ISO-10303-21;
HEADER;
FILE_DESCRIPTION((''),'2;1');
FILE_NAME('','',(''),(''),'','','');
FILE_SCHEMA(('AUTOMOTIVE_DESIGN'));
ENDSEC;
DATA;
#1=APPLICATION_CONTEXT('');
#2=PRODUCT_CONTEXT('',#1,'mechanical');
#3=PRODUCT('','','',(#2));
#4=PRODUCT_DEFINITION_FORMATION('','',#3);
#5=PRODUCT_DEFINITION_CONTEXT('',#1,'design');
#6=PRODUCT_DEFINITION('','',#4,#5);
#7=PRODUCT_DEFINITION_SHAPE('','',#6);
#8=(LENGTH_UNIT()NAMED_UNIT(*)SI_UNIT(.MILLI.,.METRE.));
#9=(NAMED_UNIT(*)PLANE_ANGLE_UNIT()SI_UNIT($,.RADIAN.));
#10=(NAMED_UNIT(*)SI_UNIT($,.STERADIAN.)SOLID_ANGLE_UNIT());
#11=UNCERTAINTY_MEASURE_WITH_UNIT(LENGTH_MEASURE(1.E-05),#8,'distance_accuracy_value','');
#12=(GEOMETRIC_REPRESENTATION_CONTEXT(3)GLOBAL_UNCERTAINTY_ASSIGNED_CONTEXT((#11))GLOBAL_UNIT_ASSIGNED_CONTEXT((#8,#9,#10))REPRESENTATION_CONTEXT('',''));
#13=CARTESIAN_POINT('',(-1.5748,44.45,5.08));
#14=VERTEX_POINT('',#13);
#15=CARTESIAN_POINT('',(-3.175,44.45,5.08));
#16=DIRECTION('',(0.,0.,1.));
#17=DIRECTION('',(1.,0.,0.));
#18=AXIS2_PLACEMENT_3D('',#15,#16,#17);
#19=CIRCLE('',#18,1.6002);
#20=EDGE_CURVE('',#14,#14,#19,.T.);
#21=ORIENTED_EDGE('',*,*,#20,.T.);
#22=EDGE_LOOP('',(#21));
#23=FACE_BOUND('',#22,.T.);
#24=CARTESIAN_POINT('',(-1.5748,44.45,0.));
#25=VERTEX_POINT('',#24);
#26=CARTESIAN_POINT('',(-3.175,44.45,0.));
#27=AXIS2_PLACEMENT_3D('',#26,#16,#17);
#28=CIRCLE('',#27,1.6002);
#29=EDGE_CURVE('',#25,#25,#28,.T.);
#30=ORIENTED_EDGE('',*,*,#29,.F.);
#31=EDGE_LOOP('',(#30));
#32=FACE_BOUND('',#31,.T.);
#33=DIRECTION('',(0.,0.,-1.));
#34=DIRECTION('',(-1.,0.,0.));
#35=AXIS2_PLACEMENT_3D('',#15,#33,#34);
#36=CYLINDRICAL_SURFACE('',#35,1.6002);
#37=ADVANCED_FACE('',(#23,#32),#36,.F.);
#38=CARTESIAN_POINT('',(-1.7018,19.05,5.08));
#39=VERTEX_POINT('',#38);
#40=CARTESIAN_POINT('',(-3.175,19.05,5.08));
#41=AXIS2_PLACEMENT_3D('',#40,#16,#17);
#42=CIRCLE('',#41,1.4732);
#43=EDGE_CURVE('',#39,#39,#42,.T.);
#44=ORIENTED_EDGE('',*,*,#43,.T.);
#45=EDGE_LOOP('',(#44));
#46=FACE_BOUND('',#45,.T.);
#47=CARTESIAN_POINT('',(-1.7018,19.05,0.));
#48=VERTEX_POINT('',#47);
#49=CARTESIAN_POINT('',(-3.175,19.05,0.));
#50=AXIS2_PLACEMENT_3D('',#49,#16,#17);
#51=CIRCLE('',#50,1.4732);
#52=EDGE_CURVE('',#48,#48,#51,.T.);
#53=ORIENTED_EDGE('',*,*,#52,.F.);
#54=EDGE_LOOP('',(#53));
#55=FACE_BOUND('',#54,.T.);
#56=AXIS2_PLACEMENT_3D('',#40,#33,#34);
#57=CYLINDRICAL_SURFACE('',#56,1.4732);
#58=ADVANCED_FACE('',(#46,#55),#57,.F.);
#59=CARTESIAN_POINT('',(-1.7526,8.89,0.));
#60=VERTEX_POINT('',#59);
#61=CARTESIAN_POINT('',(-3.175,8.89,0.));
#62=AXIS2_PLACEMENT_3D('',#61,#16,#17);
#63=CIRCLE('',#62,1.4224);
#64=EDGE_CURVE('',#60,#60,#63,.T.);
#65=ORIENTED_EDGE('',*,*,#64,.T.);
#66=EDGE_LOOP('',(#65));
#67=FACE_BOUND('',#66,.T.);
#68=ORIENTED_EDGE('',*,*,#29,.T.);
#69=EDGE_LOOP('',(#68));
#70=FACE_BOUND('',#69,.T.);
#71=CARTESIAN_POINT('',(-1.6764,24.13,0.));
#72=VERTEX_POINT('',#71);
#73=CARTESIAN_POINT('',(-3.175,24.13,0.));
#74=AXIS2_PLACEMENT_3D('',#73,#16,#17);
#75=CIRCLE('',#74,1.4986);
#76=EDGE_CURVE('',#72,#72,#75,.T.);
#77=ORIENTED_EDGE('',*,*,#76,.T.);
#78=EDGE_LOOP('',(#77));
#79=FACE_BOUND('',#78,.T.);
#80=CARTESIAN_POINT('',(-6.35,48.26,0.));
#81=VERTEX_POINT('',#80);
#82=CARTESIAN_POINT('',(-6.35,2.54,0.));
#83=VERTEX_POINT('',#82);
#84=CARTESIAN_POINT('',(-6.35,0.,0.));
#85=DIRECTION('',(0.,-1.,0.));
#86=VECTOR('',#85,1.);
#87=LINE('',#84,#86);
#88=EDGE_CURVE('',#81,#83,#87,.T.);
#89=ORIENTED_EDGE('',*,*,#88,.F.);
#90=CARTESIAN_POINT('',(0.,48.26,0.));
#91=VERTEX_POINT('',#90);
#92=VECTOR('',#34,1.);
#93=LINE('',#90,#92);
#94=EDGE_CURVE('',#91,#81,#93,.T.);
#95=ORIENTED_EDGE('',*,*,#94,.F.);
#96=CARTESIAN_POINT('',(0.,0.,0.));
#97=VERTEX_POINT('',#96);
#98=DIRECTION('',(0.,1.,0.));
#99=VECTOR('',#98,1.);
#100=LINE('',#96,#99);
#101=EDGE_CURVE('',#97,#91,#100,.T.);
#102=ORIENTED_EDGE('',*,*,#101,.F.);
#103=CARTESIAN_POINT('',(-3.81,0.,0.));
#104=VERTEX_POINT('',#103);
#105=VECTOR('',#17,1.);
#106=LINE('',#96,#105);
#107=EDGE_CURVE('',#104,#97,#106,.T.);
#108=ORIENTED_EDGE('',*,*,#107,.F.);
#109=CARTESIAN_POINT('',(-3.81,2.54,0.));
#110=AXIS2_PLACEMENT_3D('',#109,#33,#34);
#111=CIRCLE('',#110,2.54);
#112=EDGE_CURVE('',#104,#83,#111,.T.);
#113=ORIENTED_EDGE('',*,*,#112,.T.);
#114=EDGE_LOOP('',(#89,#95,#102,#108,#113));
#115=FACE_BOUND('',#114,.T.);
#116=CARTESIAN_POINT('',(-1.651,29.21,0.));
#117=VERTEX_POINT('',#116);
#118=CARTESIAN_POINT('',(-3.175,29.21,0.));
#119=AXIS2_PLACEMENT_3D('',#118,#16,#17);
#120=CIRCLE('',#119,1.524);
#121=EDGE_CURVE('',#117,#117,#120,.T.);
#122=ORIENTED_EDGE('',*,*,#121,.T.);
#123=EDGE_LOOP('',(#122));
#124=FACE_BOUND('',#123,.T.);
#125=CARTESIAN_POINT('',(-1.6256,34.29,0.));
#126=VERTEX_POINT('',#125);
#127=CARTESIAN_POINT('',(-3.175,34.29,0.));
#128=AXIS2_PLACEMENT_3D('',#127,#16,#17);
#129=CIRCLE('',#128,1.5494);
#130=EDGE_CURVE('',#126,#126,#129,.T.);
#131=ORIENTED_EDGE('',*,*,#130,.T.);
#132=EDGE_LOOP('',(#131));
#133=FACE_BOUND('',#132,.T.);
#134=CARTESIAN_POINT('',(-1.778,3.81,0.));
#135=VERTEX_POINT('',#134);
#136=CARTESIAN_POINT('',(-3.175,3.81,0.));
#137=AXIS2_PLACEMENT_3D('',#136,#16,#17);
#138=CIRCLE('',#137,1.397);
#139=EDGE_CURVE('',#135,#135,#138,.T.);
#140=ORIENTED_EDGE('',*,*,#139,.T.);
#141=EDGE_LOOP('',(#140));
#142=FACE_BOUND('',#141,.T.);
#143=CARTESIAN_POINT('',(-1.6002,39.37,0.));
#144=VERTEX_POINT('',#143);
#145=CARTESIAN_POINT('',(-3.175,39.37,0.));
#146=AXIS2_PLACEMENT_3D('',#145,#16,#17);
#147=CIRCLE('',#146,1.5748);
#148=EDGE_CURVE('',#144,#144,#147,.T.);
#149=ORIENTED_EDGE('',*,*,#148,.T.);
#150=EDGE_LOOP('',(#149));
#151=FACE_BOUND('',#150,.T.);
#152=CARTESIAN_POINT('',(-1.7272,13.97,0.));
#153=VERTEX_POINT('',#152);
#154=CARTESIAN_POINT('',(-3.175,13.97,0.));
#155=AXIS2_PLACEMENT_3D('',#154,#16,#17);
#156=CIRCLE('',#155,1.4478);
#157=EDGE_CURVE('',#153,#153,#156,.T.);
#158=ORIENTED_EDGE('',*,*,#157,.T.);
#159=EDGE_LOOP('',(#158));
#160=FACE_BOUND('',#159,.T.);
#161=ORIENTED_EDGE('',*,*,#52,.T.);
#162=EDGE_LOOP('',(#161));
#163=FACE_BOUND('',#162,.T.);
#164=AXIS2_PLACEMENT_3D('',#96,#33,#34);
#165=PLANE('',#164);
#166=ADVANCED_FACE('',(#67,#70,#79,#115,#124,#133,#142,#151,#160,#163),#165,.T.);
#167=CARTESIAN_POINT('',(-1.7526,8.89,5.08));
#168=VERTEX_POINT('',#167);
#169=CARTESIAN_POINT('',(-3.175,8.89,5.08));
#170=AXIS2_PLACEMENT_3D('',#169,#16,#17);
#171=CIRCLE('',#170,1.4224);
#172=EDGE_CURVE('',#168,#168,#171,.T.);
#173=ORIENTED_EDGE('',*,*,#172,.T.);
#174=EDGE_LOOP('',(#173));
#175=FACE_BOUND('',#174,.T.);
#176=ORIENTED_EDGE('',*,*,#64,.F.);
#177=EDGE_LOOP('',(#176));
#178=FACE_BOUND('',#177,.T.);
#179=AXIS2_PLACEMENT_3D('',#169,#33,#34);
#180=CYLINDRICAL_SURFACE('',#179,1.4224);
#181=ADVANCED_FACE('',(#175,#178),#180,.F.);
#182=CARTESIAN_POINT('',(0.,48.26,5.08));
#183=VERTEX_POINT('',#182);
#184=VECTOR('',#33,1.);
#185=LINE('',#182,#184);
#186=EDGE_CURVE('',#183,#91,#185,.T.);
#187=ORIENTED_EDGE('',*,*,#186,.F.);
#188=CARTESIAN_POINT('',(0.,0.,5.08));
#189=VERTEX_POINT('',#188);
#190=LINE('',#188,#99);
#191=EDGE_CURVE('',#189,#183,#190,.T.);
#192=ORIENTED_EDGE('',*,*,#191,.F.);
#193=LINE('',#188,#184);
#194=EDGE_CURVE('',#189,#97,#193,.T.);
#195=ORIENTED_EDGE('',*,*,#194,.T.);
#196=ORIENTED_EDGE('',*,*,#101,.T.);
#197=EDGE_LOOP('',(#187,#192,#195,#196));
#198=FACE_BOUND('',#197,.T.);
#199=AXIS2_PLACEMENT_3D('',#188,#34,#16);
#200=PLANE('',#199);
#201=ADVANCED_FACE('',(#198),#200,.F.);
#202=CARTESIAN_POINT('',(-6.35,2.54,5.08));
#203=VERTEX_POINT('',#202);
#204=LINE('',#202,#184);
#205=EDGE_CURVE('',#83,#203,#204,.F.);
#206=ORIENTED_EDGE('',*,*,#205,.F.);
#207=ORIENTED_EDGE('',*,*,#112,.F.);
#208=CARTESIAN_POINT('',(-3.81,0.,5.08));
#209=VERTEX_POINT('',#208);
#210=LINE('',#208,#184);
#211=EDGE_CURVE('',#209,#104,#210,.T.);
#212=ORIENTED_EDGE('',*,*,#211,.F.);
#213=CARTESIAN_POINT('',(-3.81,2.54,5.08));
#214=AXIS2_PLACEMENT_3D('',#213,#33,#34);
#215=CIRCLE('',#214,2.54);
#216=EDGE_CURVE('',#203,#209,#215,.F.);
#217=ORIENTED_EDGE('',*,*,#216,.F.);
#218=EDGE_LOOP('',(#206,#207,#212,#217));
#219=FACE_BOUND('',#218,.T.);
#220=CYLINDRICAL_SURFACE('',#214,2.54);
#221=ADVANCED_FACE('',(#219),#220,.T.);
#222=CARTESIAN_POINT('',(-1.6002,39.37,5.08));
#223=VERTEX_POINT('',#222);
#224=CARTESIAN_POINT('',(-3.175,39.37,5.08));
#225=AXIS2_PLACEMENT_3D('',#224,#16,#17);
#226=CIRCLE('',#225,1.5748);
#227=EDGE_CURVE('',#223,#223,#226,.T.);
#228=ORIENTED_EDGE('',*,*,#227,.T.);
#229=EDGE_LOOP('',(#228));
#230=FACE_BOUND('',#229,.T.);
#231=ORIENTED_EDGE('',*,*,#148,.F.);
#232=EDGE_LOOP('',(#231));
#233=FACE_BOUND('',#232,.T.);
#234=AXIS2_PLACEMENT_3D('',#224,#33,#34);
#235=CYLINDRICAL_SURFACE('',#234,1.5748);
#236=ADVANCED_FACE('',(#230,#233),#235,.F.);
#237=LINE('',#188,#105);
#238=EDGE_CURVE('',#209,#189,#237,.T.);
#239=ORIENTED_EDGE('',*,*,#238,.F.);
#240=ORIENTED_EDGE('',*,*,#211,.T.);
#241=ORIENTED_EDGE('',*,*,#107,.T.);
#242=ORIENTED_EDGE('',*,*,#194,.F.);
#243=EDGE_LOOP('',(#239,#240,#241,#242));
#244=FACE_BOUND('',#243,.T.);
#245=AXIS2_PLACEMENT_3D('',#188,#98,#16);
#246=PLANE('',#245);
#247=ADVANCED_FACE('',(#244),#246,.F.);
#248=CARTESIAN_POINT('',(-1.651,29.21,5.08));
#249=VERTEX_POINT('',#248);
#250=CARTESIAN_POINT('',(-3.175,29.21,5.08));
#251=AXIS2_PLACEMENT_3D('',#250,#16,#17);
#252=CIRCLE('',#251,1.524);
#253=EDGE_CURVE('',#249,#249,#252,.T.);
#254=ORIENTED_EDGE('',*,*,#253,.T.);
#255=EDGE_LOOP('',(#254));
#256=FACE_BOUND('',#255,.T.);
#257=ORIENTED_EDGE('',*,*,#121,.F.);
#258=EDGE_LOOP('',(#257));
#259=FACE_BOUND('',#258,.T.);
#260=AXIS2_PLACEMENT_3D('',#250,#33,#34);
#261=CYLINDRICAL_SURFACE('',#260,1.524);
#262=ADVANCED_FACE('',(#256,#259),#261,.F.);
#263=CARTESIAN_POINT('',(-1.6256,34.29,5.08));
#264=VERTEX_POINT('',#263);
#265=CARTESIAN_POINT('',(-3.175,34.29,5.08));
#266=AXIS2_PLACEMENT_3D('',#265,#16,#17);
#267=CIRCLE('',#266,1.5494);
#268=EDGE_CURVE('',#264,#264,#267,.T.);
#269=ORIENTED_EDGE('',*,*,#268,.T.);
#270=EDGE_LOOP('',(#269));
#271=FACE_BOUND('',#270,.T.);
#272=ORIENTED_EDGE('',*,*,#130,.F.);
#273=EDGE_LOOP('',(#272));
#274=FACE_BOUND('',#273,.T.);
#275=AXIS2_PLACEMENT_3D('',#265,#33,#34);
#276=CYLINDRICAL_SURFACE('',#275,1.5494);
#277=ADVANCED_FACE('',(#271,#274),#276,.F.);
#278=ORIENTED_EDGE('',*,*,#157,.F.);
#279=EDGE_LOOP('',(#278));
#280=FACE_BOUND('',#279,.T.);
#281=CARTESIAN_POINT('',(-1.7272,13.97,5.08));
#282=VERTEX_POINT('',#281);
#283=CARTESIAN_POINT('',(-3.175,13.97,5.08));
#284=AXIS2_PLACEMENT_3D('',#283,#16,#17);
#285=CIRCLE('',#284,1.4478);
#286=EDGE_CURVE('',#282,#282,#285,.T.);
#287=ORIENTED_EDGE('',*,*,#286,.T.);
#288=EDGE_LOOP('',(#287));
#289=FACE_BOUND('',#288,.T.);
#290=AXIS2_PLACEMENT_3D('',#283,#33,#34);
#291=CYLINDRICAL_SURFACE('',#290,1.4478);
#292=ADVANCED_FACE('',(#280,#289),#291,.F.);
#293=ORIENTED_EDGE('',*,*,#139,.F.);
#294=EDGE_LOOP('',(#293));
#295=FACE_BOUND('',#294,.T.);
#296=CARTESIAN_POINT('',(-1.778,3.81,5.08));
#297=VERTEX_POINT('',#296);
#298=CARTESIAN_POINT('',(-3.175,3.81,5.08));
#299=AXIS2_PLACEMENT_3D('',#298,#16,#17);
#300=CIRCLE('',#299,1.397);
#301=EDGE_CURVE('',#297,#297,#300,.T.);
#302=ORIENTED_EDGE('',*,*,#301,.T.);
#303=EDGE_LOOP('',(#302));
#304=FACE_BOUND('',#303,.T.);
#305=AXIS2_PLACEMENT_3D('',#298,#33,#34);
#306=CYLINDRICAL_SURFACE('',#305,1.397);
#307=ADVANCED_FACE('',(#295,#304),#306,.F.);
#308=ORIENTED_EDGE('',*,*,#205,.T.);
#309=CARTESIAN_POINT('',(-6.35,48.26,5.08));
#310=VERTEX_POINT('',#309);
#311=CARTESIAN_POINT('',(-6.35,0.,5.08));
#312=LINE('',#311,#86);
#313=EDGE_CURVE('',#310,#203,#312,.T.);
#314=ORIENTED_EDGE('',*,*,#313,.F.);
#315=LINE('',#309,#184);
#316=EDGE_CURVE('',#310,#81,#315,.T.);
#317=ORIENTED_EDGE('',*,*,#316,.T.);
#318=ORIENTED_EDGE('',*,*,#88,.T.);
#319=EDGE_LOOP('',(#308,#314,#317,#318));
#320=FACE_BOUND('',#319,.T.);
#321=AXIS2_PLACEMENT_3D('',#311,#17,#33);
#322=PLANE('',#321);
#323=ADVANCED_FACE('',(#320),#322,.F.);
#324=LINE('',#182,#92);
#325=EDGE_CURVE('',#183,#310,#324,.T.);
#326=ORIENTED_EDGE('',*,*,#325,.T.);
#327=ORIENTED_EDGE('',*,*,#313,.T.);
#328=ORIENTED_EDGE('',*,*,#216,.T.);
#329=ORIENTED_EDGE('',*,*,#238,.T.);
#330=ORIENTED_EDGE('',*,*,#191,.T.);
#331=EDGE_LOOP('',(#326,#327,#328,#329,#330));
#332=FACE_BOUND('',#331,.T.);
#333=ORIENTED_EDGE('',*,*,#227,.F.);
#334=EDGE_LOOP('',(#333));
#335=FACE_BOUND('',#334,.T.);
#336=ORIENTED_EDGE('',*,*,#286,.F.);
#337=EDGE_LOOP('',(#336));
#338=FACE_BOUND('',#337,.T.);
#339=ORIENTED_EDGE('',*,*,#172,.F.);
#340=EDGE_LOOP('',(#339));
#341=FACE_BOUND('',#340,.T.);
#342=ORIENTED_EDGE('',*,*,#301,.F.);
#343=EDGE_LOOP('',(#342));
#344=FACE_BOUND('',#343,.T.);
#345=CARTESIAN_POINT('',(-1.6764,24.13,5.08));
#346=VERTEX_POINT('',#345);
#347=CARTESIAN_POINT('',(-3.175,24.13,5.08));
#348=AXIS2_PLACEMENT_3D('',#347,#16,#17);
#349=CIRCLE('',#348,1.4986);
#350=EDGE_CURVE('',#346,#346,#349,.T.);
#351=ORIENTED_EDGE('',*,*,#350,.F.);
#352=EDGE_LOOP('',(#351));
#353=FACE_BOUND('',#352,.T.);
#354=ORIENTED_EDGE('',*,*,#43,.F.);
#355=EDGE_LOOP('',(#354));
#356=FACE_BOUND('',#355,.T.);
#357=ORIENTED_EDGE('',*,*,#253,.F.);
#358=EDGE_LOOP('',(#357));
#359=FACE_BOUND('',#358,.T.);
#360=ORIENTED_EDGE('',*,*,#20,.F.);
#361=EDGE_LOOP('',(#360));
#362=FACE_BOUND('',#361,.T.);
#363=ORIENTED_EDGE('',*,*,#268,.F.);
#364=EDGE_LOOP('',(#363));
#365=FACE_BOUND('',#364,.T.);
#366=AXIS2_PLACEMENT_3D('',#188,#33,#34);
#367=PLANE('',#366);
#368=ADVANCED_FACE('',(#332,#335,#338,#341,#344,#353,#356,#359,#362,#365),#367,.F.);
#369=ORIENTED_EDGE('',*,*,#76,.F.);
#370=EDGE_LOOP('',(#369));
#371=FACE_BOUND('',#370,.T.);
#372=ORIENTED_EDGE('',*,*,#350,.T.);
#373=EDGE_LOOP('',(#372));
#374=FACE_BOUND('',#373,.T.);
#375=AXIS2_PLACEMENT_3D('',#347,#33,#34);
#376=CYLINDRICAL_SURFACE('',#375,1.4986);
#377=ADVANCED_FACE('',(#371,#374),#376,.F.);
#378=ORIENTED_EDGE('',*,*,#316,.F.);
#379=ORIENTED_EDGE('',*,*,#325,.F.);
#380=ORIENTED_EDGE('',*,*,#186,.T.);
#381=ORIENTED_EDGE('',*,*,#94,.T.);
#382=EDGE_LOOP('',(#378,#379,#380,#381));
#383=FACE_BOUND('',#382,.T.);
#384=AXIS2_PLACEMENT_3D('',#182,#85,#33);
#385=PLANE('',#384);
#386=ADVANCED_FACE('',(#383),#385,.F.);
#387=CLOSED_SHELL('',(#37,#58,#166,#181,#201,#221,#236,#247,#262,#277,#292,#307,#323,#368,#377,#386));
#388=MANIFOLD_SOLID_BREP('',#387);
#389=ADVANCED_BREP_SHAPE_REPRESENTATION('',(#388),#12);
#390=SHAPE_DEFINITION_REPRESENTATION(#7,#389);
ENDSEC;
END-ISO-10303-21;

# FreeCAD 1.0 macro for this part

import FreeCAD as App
import Part
import Sketcher
Q = App.Units.Quantity


def edges_at(feature, points):
    """Names of the edges that pass closest to the given points."""
    edges = feature.Shape.Edges
    near = lambda p: min(range(len(edges)), key=lambda i: edges[i].distToShape(Part.Vertex(*p))[0])
    return sorted({f"Edge{near(p) + 1}" for p in points})


def add_polygon(sketch, points):
    """Adds a closed chain of lines whose ends are joined by coincident constraints."""
    first, n = sketch.GeometryCount, len(points)
    for a, b in zip(points, points[1:] + points[:1]):
        sketch.addGeometry(Part.LineSegment(App.Vector(*a, 0), App.Vector(*b, 0)), False)
    for i in range(n):
        sketch.addConstraint(Sketcher.Constraint("Coincident", first + i, 2, first + (i + 1) % n, 1))

doc = App.newDocument("Part")
body = doc.addObject("PartDesign::Body", "Body")

sketch1 = body.newObject("Sketcher::SketchObject", "Sketch")
sketch1.AttachmentSupport = (doc.getObject("XY_Plane"), [""])
sketch1.MapMode = "FlatFace"
add_polygon(sketch1, [(-6.3, 0), (0, 0), (0, 48.3), (-6.3, 48.3)])
sketch1.addGeometry(Part.Circle(App.Vector(-3.2, 3.8, 0), App.Vector(0, 0, 1), 1.4), False)
sketch1.addGeometry(Part.Circle(App.Vector(-3.2, 8.9, 0), App.Vector(0, 0, 1), 1.4), False)
sketch1.addGeometry(Part.Circle(App.Vector(-3.2, 14, 0), App.Vector(0, 0, 1), 1.4), False)
sketch1.addGeometry(Part.Circle(App.Vector(-3.2, 19.1, 0), App.Vector(0, 0, 1), 1.5), False)
sketch1.addGeometry(Part.Circle(App.Vector(-3.2, 24.1, 0), App.Vector(0, 0, 1), 1.5), False)
sketch1.addGeometry(Part.Circle(App.Vector(-3.2, 29.2, 0), App.Vector(0, 0, 1), 1.5), False)
sketch1.addGeometry(Part.Circle(App.Vector(-3.2, 34.3, 0), App.Vector(0, 0, 1), 1.5), False)
sketch1.addGeometry(Part.Circle(App.Vector(-3.2, 39.4, 0), App.Vector(0, 0, 1), 1.6), False)
sketch1.addGeometry(Part.Circle(App.Vector(-3.2, 44.5, 0), App.Vector(0, 0, 1), 1.6), False)
sketch1.addConstraint(Sketcher.Constraint("Horizontal", 0))
sketch1.addConstraint(Sketcher.Constraint("Vertical", 1))
sketch1.addConstraint(Sketcher.Constraint("Horizontal", 2))
sketch1.addConstraint(Sketcher.Constraint("Vertical", 3))
sketch1.addConstraint(Sketcher.Constraint("Coincident", 0, 2, -1, 1))
sketch1.addConstraint(Sketcher.Constraint("Vertical", 4, 3, 5, 3))
sketch1.addConstraint(Sketcher.Constraint("Vertical", 5, 3, 6, 3))
sketch1.addConstraint(Sketcher.Constraint("Vertical", 6, 3, 7, 3))
sketch1.addConstraint(Sketcher.Constraint("Vertical", 7, 3, 8, 3))
sketch1.addConstraint(Sketcher.Constraint("Vertical", 8, 3, 9, 3))
sketch1.addConstraint(Sketcher.Constraint("Vertical", 9, 3, 10, 3))
sketch1.addConstraint(Sketcher.Constraint("Vertical", 10, 3, 11, 3))
sketch1.addConstraint(Sketcher.Constraint("Vertical", 11, 3, 12, 3))
sketch1.addConstraint(Sketcher.Constraint("Diameter", 4, Q("0.11 in")))
sketch1.addConstraint(Sketcher.Constraint("Diameter", 9, Q("0.12 in")))
sketch1.addConstraint(Sketcher.Constraint("Diameter", 5, Q("0.112 in")))
sketch1.addConstraint(Sketcher.Constraint("Diameter", 6, Q("0.114 in")))
sketch1.addConstraint(Sketcher.Constraint("Diameter", 7, Q("0.116 in")))
sketch1.addConstraint(Sketcher.Constraint("Diameter", 8, Q("0.118 in")))
sketch1.addConstraint(Sketcher.Constraint("Diameter", 10, Q("0.122 in")))
sketch1.addConstraint(Sketcher.Constraint("Diameter", 11, Q("0.124 in")))
sketch1.addConstraint(Sketcher.Constraint("Diameter", 12, Q("0.126 in")))
sketch1.addConstraint(Sketcher.Constraint("DistanceY", 1, 1, 1, 2, Q("1.9 in")))
sketch1.addConstraint(Sketcher.Constraint("DistanceY", 4, 3, 9, 3, Q("1 in")))
sketch1.addConstraint(Sketcher.Constraint("DistanceY", 5, 3, 10, 3, Q("1 in")))
sketch1.addConstraint(Sketcher.Constraint("DistanceY", 6, 3, 11, 3, Q("1 in")))
sketch1.addConstraint(Sketcher.Constraint("DistanceY", 7, 3, 12, 3, Q("1 in")))
sketch1.addConstraint(Sketcher.Constraint("DistanceX", 0, 1, 0, 2, Q("0.25 in")))
sketch1.addConstraint(Sketcher.Constraint("DistanceY", 4, 3, 5, 3, Q("0.2 in")))
sketch1.addConstraint(Sketcher.Constraint("DistanceY", 5, 3, 6, 3, Q("0.2 in")))
sketch1.addConstraint(Sketcher.Constraint("DistanceY", 6, 3, 7, 3, Q("0.2 in")))
sketch1.addConstraint(Sketcher.Constraint("DistanceY", 7, 3, 8, 3, Q("0.2 in")))
sketch1.addConstraint(Sketcher.Constraint("DistanceY", -1, 1, 4, 3, Q("0.15 in")))
sketch1.addConstraint(Sketcher.Constraint("DistanceX", 4, 3, -1, 1, Q("0.125 in")))
pad1 = body.newObject("PartDesign::Pad", "Pad")
pad1.Profile = sketch1
pad1.Length = Q("0.2 in")
doc.recompute()

fillet = body.newObject("PartDesign::Fillet", "Fillet")
fillet.Base = (pad1, edges_at(pad1, [(-6.35, 0, 2.54)]))
fillet.Radius = Q("0.1 in")

doc.recompute()
